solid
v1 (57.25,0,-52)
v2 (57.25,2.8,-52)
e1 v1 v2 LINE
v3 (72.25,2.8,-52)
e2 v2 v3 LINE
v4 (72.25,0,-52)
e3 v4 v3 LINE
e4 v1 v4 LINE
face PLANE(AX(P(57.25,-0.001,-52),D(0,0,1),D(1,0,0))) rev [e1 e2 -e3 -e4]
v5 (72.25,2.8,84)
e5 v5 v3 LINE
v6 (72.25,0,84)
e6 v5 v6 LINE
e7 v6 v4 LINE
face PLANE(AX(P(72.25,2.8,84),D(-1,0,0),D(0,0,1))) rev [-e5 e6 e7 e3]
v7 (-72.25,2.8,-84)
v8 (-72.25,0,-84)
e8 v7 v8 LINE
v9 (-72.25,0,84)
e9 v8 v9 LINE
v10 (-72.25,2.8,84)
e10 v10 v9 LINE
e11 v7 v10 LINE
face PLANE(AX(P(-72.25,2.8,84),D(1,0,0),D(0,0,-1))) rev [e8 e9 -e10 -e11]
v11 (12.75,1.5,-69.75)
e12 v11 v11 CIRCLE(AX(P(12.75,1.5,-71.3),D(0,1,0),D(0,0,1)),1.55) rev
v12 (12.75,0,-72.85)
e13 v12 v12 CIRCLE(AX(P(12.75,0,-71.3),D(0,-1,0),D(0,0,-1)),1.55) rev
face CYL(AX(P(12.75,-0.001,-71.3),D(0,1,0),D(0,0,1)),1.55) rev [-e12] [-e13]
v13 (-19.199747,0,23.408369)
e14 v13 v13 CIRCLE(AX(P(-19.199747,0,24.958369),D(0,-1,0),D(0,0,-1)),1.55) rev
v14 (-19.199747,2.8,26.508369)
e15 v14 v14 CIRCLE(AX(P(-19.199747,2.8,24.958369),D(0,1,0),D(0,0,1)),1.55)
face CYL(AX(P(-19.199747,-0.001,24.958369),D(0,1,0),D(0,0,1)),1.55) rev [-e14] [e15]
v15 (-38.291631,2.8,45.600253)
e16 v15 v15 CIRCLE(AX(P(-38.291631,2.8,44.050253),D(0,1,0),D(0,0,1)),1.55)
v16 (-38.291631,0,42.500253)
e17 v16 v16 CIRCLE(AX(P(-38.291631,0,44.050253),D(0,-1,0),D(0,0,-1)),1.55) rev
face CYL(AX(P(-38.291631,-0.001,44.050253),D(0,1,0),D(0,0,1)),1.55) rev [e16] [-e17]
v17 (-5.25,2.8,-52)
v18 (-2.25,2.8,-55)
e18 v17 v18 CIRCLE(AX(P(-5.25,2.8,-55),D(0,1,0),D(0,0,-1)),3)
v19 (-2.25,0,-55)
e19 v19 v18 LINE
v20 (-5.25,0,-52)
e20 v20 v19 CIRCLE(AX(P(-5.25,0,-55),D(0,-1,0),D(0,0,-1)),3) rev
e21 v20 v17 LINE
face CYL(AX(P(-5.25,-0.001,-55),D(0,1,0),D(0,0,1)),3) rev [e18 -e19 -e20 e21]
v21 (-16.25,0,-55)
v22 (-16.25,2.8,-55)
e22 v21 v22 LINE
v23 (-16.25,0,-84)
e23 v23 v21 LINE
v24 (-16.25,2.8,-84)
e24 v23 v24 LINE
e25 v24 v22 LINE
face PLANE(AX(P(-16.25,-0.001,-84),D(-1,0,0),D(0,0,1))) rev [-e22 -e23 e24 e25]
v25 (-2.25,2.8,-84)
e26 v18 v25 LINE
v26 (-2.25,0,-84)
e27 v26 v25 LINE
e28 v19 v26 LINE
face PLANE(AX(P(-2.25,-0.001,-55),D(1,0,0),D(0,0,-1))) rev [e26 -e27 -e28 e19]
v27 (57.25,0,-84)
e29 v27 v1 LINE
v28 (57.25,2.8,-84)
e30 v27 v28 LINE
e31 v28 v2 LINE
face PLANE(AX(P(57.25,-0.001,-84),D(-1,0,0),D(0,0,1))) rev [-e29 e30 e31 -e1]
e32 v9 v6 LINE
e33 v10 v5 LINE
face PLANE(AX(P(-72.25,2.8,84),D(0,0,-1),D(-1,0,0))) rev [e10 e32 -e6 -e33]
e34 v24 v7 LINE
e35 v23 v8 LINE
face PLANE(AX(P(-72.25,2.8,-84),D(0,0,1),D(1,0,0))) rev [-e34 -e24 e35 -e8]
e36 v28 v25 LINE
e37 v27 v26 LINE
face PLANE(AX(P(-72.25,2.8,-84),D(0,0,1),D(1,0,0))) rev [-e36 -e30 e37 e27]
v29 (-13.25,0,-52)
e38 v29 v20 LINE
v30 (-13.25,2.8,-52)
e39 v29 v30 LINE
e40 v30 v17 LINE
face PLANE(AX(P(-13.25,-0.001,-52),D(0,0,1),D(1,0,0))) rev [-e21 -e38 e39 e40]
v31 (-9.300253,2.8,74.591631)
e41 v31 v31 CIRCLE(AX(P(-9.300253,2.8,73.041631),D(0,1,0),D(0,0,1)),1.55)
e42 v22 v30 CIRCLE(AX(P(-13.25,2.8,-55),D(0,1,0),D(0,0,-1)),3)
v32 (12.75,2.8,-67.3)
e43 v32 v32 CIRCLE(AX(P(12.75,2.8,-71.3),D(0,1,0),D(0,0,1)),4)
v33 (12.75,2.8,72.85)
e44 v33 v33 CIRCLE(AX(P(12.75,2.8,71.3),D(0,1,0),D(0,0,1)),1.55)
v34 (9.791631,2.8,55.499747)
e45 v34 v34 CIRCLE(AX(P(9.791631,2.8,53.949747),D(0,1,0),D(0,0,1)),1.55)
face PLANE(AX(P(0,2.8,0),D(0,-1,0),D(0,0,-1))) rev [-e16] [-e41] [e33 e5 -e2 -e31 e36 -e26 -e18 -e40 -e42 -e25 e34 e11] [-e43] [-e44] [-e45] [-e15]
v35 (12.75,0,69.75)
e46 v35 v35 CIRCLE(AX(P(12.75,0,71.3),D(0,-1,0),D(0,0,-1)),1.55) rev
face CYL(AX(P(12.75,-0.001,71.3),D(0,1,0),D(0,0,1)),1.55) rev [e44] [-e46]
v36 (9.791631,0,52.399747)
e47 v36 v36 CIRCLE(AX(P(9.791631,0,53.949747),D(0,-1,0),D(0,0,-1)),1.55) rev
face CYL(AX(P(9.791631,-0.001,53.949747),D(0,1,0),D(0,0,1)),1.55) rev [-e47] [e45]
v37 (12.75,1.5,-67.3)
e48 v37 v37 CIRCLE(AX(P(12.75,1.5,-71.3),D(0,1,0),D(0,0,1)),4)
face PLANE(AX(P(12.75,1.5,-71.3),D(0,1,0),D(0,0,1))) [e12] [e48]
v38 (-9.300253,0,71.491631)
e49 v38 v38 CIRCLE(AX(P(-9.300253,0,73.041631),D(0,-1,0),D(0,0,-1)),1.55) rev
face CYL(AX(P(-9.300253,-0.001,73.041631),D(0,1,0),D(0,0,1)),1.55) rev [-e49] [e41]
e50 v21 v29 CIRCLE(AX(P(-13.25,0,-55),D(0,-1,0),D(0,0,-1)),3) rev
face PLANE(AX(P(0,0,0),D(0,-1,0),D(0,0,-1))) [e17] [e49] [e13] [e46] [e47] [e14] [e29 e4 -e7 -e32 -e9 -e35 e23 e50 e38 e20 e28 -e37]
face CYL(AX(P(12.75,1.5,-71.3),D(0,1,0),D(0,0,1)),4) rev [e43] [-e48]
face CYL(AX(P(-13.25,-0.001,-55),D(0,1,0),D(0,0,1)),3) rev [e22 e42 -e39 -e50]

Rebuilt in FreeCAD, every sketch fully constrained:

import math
import FreeCAD as App
import Part
import Sketcher

V = App.Vector
Q = App.Units.Quantity

doc = App.newDocument("Part")
body = doc.addObject("PartDesign::Body", "Body")

# Sketch on XZ plane
sketch1 = doc.addObject("Sketcher::SketchObject", "Sketch")
body.addObject(sketch1)
sketch1.AttachmentSupport = (doc.XZ_Plane, [""])
sketch1.MapMode = "FlatFace"
sketch1.addGeometry([
    Part.LineSegment(V(-72, -84, 0), V(-72, 84, 0)),
    Part.LineSegment(V(-72, 84, 0), V(72, 84, 0)),
    Part.LineSegment(V(72, 84, 0), V(72, -84, 0)),
    Part.LineSegment(V(72, -84, 0), V(-72, -84, 0)),
], False)
sketch1.addConstraint([
    Sketcher.Constraint("Coincident", 0, 2, 1, 1),
    Sketcher.Constraint("Coincident", 1, 2, 2, 1),
    Sketcher.Constraint("Coincident", 2, 2, 3, 1),
    Sketcher.Constraint("Coincident", 3, 2, 0, 1),
    Sketcher.Constraint("Vertical", 0),
    Sketcher.Constraint("Horizontal", 1),
    Sketcher.Constraint("Vertical", 2),
    Sketcher.Constraint("Horizontal", 3),
    Sketcher.Constraint("Symmetric", 0, 2, 2, 2, -1, 1),
    Sketcher.Constraint("DistanceY", 0, 1, 0, 2, Q("168 mm")),
    Sketcher.Constraint("DistanceX", 1, 1, 1, 2, Q("144.5 mm")),
])
pad1 = doc.addObject("PartDesign::Pad", "Pad")
body.addObject(pad1)
pad1.Profile = sketch1
pad1.Length = 2.8
pad1.Reversed = True

# Sketch on XZ plane
sketch2 = doc.addObject("Sketcher::SketchObject", "Sketch001")
body.addObject(sketch2)
sketch2.AttachmentSupport = (doc.XZ_Plane, [""])
sketch2.MapMode = "FlatFace"
sketch2.AttachmentOffset = App.Placement(V(0, 0, -2.8), App.Rotation())
sketch2.addGeometry(Part.Circle(V(-19.2, 25, 0), V(0, 0, 1), 1.6), False)
sketch2.addConstraint([
    Sketcher.Constraint("Diameter", 0, Q("3.1 mm")),
    Sketcher.Constraint("DistanceY", -1, 1, 0, 3, Q("24.958369 mm")),
    Sketcher.Constraint("DistanceX", 0, 3, -1, 1, Q("19.199747 mm")),
])
pocket1 = doc.addObject("PartDesign::Pocket", "Pocket")
body.addObject(pocket1)
pocket1.Profile = sketch2
pocket1.Type = "UpToFirst"
pocket1.Reversed = True

# Sketch on XZ plane
sketch3 = doc.addObject("Sketcher::SketchObject", "Sketch002")
body.addObject(sketch3)
sketch3.AttachmentSupport = (doc.XZ_Plane, [""])
sketch3.MapMode = "FlatFace"
sketch3.AttachmentOffset = App.Placement(V(0, 0, -2.8), App.Rotation())
sketch3.addGeometry(Part.Circle(V(9.8, 53.9, 0), V(0, 0, 1), 1.6), False)
sketch3.addConstraint([
    Sketcher.Constraint("Diameter", 0, Q("3.1 mm")),
    Sketcher.Constraint("DistanceX", -1, 1, 0, 3, Q("9.791631 mm")),
    Sketcher.Constraint("DistanceY", -1, 1, 0, 3, Q("53.949747 mm")),
])
pocket2 = doc.addObject("PartDesign::Pocket", "Pocket001")
body.addObject(pocket2)
pocket2.Profile = sketch3
pocket2.Type = "UpToFirst"
pocket2.Reversed = True

# Sketch on XZ plane
sketch4 = doc.addObject("Sketcher::SketchObject", "Sketch003")
body.addObject(sketch4)
sketch4.AttachmentSupport = (doc.XZ_Plane, [""])
sketch4.MapMode = "FlatFace"
sketch4.AttachmentOffset = App.Placement(V(0, 0, -2.8), App.Rotation())
sketch4.addGeometry(Part.Circle(V(-9.3, 73, 0), V(0, 0, 1), 1.6), False)
sketch4.addConstraint([
    Sketcher.Constraint("Diameter", 0, Q("3.1 mm")),
    Sketcher.Constraint("DistanceY", -1, 1, 0, 3, Q("73.041631 mm")),
    Sketcher.Constraint("DistanceX", 0, 3, -1, 1, Q("9.300253 mm")),
])
pocket3 = doc.addObject("PartDesign::Pocket", "Pocket002")
body.addObject(pocket3)
pocket3.Profile = sketch4
pocket3.Type = "UpToFirst"
pocket3.Reversed = True

# Sketch on XZ plane
sketch5 = doc.addObject("Sketcher::SketchObject", "Sketch004")
body.addObject(sketch5)
sketch5.AttachmentSupport = (doc.XZ_Plane, [""])
sketch5.MapMode = "FlatFace"
sketch5.AttachmentOffset = App.Placement(V(0, 0, -2.8), App.Rotation())
sketch5.addGeometry(Part.Circle(V(-38.3, 44.1, 0), V(0, 0, 1), 1.6), False)
sketch5.addConstraint([
    Sketcher.Constraint("Diameter", 0, Q("3.1 mm")),
    Sketcher.Constraint("DistanceX", 0, 3, -1, 1, Q("38.291631 mm")),
    Sketcher.Constraint("DistanceY", -1, 1, 0, 3, Q("44.050253 mm")),
])
pocket4 = doc.addObject("PartDesign::Pocket", "Pocket003")
body.addObject(pocket4)
pocket4.Profile = sketch5
pocket4.Type = "UpToFirst"
pocket4.Reversed = True

# Sketch on XZ plane
sketch6 = doc.addObject("Sketcher::SketchObject", "Sketch005")
body.addObject(sketch6)
sketch6.AttachmentSupport = (doc.XZ_Plane, [""])
sketch6.MapMode = "FlatFace"
sketch6.AttachmentOffset = App.Placement(V(0, 0, -2.8), App.Rotation())
sketch6.addGeometry([
    Part.LineSegment(V(57, -84, 0), V(57, -52, 0)),
    Part.LineSegment(V(57, -52, 0), V(72, -52, 0)),
    Part.LineSegment(V(72, -52, 0), V(72, -84, 0)),
    Part.LineSegment(V(72, -84, 0), V(57, -84, 0)),
], False)
sketch6.addConstraint([
    Sketcher.Constraint("Coincident", 0, 2, 1, 1),
    Sketcher.Constraint("Coincident", 1, 2, 2, 1),
    Sketcher.Constraint("Coincident", 2, 2, 3, 1),
    Sketcher.Constraint("Coincident", 3, 2, 0, 1),
    Sketcher.Constraint("Vertical", 0),
    Sketcher.Constraint("Horizontal", 1),
    Sketcher.Constraint("Vertical", 2),
    Sketcher.Constraint("Horizontal", 3),
    Sketcher.Constraint("DistanceX", 1, 1, 1, 2, Q("15 mm")),
    Sketcher.Constraint("DistanceY", 0, 1, 0, 2, Q("32 mm")),
    Sketcher.Constraint("DistanceY", 0, 2, -1, 1, Q("52 mm")),
    Sketcher.Constraint("DistanceX", -1, 1, 0, 2, Q("57.25 mm")),
])
pocket5 = doc.addObject("PartDesign::Pocket", "Pocket004")
body.addObject(pocket5)
pocket5.Profile = sketch6
pocket5.Type = "UpToFirst"
pocket5.Reversed = True

# Sketch on XZ plane
sketch7 = doc.addObject("Sketcher::SketchObject", "Sketch006")
body.addObject(sketch7)
sketch7.AttachmentSupport = (doc.XZ_Plane, [""])
sketch7.MapMode = "FlatFace"
sketch7.AttachmentOffset = App.Placement(V(0, 0, -2.8), App.Rotation())
sketch7.addGeometry(Part.Circle(V(12.8, -71.3, 0), V(0, 0, 1), 1.6), False)
sketch7.addConstraint([
    Sketcher.Constraint("Diameter", 0, Q("3.1 mm")),
    Sketcher.Constraint("DistanceY", 0, 3, -1, 1, Q("71.3 mm")),
    Sketcher.Constraint("DistanceX", -1, 1, 0, 3, Q("12.75 mm")),
])
pocket6 = doc.addObject("PartDesign::Pocket", "Pocket005")
body.addObject(pocket6)
pocket6.Profile = sketch7
pocket6.Type = "UpToFirst"
pocket6.Reversed = True

# Sketch on XZ plane
sketch8 = doc.addObject("Sketcher::SketchObject", "Sketch007")
body.addObject(sketch8)
sketch8.AttachmentSupport = (doc.XZ_Plane, [""])
sketch8.MapMode = "FlatFace"
sketch8.AttachmentOffset = App.Placement(V(0, 0, -2.8), App.Rotation())
sketch8.addGeometry(Part.Circle(V(12.8, 71.3, 0), V(0, 0, 1), 1.6), False)
sketch8.addConstraint([
    Sketcher.Constraint("Diameter", 0, Q("3.1 mm")),
    Sketcher.Constraint("DistanceY", -1, 1, 0, 3, Q("71.3 mm")),
    Sketcher.Constraint("DistanceX", -1, 1, 0, 3, Q("12.75 mm")),
])
pocket7 = doc.addObject("PartDesign::Pocket", "Pocket006")
body.addObject(pocket7)
pocket7.Profile = sketch8
pocket7.Type = "UpToFirst"
pocket7.Reversed = True

# Sketch on XZ plane
sketch9 = doc.addObject("Sketcher::SketchObject", "Sketch008")
body.addObject(sketch9)
sketch9.AttachmentSupport = (doc.XZ_Plane, [""])
sketch9.MapMode = "FlatFace"
sketch9.AttachmentOffset = App.Placement(V(0, 0, -2.8), App.Rotation())
sketch9.addGeometry(Part.Circle(V(12.8, -71.3, 0), V(0, 0, 1), 4), False)
sketch9.addConstraint([
    Sketcher.Constraint("Diameter", 0, Q("8 mm")),
    Sketcher.Constraint("DistanceY", 0, 3, -1, 1, Q("71.3 mm")),
    Sketcher.Constraint("DistanceX", -1, 1, 0, 3, Q("12.75 mm")),
])
pocket8 = doc.addObject("PartDesign::Pocket", "Pocket007")
body.addObject(pocket8)
pocket8.Profile = sketch9
pocket8.Length = 1.3
pocket8.Reversed = True

# Sketch on XZ plane
sketch10 = doc.addObject("Sketcher::SketchObject", "Sketch009")
body.addObject(sketch10)
sketch10.AttachmentSupport = (doc.XZ_Plane, [""])
sketch10.MapMode = "FlatFace"
sketch10.AttachmentOffset = App.Placement(V(0, 0, -2.8), App.Rotation())
sketch10.addGeometry([
    Part.LineSegment(V(-16.2, -84, 0), V(-16.2, -55, 0)),  # 0
    Part.ArcOfCircle(Part.Circle(V(-13.3, -55, 0), V(0, 0, 1), 3), math.radians(90), math.radians(180)),  # 1
    Part.LineSegment(V(-13.2, -52, 0), V(-5.2, -52, 0)),  # 2
    Part.ArcOfCircle(Part.Circle(V(-5.2, -55, 0), V(0, 0, 1), 3), math.radians(0), math.radians(90)),  # 3
    Part.LineSegment(V(-2.2, -55, 0), V(-2.2, -84, 0)),  # 4
    Part.LineSegment(V(-2.2, -84, 0), V(-16.2, -84, 0)),  # 5
], False)
sketch10.addConstraint([
    Sketcher.Constraint("Tangent", 0, 2, 1, 2),
    Sketcher.Constraint("Tangent", 1, 1, 2, 1),
    Sketcher.Constraint("Tangent", 2, 2, 3, 2),
    Sketcher.Constraint("Tangent", 3, 1, 4, 1),
    Sketcher.Constraint("Coincident", 4, 2, 5, 1),
    Sketcher.Constraint("Coincident", 5, 2, 0, 1),
    Sketcher.Constraint("Vertical", 0),
    Sketcher.Constraint("Horizontal", 2),
    Sketcher.Constraint("Vertical", 4),
    Sketcher.Constraint("Horizontal", 5),
    Sketcher.Constraint("Equal", 1, 3),
    Sketcher.Constraint("Radius", 1, Q("3 mm")),
    Sketcher.Constraint("DistanceX", 2, 1, 2, 2, Q("8 mm")),
    Sketcher.Constraint("DistanceY", 0, 1, 0, 2, Q("29 mm")),
    Sketcher.Constraint("DistanceY", 1, 3, -1, 1, Q("55 mm")),
    Sketcher.Constraint("DistanceX", 1, 3, -1, 1, Q("13.25 mm")),
])
pocket9 = doc.addObject("PartDesign::Pocket", "Pocket008")
body.addObject(pocket9)
pocket9.Profile = sketch10
pocket9.Type = "UpToFirst"
pocket9.Reversed = True

doc.recompute()
